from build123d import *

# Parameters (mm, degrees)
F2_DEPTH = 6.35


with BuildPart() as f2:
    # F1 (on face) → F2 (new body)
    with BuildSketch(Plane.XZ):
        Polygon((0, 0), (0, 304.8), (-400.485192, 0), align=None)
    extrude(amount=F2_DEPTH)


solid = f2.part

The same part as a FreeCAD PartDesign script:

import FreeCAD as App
import Part
import Sketcher
from FreeCAD import Vector
Q = App.Units.Quantity

doc = App.newDocument("Part")
params = doc.addObject("Spreadsheet::Sheet", "Params")
for row, (alias, value) in enumerate([
    ("sketch1_height", "12 in"),
    ("pad1_length", "0.25 in"),
], start=1):
    params.set(f"A{row}", alias)
    params.set(f"B{row}", "=" + value)
    params.setAlias(f"B{row}", alias)

body = doc.addObject("PartDesign::Body", "Body")

sketch1 = body.newObject("Sketcher::SketchObject", "Sketch")
sketch1.AttachmentSupport = (doc.getObject("XZ_Plane"), [""])
sketch1.MapMode = "FlatFace"
sketch1.addGeometry(Part.LineSegment(Vector(0, 0, 0), Vector(0, 305, 0)), False)
sketch1.addGeometry(Part.LineSegment(Vector(0, 305, 0), Vector(-400, 0, 0)), False)
sketch1.addGeometry(Part.LineSegment(Vector(-400, 0, 0), Vector(0, 0, 0)), False)
sketch1.addConstraint(Sketcher.Constraint("Coincident", 0, 2, 1, 1))
sketch1.addConstraint(Sketcher.Constraint("Coincident", 1, 2, 2, 1))
sketch1.addConstraint(Sketcher.Constraint("Coincident", 2, 2, 0, 1))
sketch1.addConstraint(Sketcher.Constraint("Vertical", 0))
sketch1.addConstraint(Sketcher.Constraint("Horizontal", 2))
sketch1.addConstraint(Sketcher.Constraint("Coincident", 2, 2, -1, 1))
sketch1.addConstraint(Sketcher.Constraint("DistanceY", 0, 1, 0, 2, Q("12 in")))
sketch1.addConstraint(Sketcher.Constraint("DistanceX", 2, 1, 2, 2, Q("400.485192 mm")))
sketch1.setExpression("Constraints[6]", "Params.sketch1_height")
pad1 = body.newObject("PartDesign::Pad", "Pad")
pad1.Profile = sketch1
pad1.setExpression("Length", "Params.pad1_length")

doc.recompute()
